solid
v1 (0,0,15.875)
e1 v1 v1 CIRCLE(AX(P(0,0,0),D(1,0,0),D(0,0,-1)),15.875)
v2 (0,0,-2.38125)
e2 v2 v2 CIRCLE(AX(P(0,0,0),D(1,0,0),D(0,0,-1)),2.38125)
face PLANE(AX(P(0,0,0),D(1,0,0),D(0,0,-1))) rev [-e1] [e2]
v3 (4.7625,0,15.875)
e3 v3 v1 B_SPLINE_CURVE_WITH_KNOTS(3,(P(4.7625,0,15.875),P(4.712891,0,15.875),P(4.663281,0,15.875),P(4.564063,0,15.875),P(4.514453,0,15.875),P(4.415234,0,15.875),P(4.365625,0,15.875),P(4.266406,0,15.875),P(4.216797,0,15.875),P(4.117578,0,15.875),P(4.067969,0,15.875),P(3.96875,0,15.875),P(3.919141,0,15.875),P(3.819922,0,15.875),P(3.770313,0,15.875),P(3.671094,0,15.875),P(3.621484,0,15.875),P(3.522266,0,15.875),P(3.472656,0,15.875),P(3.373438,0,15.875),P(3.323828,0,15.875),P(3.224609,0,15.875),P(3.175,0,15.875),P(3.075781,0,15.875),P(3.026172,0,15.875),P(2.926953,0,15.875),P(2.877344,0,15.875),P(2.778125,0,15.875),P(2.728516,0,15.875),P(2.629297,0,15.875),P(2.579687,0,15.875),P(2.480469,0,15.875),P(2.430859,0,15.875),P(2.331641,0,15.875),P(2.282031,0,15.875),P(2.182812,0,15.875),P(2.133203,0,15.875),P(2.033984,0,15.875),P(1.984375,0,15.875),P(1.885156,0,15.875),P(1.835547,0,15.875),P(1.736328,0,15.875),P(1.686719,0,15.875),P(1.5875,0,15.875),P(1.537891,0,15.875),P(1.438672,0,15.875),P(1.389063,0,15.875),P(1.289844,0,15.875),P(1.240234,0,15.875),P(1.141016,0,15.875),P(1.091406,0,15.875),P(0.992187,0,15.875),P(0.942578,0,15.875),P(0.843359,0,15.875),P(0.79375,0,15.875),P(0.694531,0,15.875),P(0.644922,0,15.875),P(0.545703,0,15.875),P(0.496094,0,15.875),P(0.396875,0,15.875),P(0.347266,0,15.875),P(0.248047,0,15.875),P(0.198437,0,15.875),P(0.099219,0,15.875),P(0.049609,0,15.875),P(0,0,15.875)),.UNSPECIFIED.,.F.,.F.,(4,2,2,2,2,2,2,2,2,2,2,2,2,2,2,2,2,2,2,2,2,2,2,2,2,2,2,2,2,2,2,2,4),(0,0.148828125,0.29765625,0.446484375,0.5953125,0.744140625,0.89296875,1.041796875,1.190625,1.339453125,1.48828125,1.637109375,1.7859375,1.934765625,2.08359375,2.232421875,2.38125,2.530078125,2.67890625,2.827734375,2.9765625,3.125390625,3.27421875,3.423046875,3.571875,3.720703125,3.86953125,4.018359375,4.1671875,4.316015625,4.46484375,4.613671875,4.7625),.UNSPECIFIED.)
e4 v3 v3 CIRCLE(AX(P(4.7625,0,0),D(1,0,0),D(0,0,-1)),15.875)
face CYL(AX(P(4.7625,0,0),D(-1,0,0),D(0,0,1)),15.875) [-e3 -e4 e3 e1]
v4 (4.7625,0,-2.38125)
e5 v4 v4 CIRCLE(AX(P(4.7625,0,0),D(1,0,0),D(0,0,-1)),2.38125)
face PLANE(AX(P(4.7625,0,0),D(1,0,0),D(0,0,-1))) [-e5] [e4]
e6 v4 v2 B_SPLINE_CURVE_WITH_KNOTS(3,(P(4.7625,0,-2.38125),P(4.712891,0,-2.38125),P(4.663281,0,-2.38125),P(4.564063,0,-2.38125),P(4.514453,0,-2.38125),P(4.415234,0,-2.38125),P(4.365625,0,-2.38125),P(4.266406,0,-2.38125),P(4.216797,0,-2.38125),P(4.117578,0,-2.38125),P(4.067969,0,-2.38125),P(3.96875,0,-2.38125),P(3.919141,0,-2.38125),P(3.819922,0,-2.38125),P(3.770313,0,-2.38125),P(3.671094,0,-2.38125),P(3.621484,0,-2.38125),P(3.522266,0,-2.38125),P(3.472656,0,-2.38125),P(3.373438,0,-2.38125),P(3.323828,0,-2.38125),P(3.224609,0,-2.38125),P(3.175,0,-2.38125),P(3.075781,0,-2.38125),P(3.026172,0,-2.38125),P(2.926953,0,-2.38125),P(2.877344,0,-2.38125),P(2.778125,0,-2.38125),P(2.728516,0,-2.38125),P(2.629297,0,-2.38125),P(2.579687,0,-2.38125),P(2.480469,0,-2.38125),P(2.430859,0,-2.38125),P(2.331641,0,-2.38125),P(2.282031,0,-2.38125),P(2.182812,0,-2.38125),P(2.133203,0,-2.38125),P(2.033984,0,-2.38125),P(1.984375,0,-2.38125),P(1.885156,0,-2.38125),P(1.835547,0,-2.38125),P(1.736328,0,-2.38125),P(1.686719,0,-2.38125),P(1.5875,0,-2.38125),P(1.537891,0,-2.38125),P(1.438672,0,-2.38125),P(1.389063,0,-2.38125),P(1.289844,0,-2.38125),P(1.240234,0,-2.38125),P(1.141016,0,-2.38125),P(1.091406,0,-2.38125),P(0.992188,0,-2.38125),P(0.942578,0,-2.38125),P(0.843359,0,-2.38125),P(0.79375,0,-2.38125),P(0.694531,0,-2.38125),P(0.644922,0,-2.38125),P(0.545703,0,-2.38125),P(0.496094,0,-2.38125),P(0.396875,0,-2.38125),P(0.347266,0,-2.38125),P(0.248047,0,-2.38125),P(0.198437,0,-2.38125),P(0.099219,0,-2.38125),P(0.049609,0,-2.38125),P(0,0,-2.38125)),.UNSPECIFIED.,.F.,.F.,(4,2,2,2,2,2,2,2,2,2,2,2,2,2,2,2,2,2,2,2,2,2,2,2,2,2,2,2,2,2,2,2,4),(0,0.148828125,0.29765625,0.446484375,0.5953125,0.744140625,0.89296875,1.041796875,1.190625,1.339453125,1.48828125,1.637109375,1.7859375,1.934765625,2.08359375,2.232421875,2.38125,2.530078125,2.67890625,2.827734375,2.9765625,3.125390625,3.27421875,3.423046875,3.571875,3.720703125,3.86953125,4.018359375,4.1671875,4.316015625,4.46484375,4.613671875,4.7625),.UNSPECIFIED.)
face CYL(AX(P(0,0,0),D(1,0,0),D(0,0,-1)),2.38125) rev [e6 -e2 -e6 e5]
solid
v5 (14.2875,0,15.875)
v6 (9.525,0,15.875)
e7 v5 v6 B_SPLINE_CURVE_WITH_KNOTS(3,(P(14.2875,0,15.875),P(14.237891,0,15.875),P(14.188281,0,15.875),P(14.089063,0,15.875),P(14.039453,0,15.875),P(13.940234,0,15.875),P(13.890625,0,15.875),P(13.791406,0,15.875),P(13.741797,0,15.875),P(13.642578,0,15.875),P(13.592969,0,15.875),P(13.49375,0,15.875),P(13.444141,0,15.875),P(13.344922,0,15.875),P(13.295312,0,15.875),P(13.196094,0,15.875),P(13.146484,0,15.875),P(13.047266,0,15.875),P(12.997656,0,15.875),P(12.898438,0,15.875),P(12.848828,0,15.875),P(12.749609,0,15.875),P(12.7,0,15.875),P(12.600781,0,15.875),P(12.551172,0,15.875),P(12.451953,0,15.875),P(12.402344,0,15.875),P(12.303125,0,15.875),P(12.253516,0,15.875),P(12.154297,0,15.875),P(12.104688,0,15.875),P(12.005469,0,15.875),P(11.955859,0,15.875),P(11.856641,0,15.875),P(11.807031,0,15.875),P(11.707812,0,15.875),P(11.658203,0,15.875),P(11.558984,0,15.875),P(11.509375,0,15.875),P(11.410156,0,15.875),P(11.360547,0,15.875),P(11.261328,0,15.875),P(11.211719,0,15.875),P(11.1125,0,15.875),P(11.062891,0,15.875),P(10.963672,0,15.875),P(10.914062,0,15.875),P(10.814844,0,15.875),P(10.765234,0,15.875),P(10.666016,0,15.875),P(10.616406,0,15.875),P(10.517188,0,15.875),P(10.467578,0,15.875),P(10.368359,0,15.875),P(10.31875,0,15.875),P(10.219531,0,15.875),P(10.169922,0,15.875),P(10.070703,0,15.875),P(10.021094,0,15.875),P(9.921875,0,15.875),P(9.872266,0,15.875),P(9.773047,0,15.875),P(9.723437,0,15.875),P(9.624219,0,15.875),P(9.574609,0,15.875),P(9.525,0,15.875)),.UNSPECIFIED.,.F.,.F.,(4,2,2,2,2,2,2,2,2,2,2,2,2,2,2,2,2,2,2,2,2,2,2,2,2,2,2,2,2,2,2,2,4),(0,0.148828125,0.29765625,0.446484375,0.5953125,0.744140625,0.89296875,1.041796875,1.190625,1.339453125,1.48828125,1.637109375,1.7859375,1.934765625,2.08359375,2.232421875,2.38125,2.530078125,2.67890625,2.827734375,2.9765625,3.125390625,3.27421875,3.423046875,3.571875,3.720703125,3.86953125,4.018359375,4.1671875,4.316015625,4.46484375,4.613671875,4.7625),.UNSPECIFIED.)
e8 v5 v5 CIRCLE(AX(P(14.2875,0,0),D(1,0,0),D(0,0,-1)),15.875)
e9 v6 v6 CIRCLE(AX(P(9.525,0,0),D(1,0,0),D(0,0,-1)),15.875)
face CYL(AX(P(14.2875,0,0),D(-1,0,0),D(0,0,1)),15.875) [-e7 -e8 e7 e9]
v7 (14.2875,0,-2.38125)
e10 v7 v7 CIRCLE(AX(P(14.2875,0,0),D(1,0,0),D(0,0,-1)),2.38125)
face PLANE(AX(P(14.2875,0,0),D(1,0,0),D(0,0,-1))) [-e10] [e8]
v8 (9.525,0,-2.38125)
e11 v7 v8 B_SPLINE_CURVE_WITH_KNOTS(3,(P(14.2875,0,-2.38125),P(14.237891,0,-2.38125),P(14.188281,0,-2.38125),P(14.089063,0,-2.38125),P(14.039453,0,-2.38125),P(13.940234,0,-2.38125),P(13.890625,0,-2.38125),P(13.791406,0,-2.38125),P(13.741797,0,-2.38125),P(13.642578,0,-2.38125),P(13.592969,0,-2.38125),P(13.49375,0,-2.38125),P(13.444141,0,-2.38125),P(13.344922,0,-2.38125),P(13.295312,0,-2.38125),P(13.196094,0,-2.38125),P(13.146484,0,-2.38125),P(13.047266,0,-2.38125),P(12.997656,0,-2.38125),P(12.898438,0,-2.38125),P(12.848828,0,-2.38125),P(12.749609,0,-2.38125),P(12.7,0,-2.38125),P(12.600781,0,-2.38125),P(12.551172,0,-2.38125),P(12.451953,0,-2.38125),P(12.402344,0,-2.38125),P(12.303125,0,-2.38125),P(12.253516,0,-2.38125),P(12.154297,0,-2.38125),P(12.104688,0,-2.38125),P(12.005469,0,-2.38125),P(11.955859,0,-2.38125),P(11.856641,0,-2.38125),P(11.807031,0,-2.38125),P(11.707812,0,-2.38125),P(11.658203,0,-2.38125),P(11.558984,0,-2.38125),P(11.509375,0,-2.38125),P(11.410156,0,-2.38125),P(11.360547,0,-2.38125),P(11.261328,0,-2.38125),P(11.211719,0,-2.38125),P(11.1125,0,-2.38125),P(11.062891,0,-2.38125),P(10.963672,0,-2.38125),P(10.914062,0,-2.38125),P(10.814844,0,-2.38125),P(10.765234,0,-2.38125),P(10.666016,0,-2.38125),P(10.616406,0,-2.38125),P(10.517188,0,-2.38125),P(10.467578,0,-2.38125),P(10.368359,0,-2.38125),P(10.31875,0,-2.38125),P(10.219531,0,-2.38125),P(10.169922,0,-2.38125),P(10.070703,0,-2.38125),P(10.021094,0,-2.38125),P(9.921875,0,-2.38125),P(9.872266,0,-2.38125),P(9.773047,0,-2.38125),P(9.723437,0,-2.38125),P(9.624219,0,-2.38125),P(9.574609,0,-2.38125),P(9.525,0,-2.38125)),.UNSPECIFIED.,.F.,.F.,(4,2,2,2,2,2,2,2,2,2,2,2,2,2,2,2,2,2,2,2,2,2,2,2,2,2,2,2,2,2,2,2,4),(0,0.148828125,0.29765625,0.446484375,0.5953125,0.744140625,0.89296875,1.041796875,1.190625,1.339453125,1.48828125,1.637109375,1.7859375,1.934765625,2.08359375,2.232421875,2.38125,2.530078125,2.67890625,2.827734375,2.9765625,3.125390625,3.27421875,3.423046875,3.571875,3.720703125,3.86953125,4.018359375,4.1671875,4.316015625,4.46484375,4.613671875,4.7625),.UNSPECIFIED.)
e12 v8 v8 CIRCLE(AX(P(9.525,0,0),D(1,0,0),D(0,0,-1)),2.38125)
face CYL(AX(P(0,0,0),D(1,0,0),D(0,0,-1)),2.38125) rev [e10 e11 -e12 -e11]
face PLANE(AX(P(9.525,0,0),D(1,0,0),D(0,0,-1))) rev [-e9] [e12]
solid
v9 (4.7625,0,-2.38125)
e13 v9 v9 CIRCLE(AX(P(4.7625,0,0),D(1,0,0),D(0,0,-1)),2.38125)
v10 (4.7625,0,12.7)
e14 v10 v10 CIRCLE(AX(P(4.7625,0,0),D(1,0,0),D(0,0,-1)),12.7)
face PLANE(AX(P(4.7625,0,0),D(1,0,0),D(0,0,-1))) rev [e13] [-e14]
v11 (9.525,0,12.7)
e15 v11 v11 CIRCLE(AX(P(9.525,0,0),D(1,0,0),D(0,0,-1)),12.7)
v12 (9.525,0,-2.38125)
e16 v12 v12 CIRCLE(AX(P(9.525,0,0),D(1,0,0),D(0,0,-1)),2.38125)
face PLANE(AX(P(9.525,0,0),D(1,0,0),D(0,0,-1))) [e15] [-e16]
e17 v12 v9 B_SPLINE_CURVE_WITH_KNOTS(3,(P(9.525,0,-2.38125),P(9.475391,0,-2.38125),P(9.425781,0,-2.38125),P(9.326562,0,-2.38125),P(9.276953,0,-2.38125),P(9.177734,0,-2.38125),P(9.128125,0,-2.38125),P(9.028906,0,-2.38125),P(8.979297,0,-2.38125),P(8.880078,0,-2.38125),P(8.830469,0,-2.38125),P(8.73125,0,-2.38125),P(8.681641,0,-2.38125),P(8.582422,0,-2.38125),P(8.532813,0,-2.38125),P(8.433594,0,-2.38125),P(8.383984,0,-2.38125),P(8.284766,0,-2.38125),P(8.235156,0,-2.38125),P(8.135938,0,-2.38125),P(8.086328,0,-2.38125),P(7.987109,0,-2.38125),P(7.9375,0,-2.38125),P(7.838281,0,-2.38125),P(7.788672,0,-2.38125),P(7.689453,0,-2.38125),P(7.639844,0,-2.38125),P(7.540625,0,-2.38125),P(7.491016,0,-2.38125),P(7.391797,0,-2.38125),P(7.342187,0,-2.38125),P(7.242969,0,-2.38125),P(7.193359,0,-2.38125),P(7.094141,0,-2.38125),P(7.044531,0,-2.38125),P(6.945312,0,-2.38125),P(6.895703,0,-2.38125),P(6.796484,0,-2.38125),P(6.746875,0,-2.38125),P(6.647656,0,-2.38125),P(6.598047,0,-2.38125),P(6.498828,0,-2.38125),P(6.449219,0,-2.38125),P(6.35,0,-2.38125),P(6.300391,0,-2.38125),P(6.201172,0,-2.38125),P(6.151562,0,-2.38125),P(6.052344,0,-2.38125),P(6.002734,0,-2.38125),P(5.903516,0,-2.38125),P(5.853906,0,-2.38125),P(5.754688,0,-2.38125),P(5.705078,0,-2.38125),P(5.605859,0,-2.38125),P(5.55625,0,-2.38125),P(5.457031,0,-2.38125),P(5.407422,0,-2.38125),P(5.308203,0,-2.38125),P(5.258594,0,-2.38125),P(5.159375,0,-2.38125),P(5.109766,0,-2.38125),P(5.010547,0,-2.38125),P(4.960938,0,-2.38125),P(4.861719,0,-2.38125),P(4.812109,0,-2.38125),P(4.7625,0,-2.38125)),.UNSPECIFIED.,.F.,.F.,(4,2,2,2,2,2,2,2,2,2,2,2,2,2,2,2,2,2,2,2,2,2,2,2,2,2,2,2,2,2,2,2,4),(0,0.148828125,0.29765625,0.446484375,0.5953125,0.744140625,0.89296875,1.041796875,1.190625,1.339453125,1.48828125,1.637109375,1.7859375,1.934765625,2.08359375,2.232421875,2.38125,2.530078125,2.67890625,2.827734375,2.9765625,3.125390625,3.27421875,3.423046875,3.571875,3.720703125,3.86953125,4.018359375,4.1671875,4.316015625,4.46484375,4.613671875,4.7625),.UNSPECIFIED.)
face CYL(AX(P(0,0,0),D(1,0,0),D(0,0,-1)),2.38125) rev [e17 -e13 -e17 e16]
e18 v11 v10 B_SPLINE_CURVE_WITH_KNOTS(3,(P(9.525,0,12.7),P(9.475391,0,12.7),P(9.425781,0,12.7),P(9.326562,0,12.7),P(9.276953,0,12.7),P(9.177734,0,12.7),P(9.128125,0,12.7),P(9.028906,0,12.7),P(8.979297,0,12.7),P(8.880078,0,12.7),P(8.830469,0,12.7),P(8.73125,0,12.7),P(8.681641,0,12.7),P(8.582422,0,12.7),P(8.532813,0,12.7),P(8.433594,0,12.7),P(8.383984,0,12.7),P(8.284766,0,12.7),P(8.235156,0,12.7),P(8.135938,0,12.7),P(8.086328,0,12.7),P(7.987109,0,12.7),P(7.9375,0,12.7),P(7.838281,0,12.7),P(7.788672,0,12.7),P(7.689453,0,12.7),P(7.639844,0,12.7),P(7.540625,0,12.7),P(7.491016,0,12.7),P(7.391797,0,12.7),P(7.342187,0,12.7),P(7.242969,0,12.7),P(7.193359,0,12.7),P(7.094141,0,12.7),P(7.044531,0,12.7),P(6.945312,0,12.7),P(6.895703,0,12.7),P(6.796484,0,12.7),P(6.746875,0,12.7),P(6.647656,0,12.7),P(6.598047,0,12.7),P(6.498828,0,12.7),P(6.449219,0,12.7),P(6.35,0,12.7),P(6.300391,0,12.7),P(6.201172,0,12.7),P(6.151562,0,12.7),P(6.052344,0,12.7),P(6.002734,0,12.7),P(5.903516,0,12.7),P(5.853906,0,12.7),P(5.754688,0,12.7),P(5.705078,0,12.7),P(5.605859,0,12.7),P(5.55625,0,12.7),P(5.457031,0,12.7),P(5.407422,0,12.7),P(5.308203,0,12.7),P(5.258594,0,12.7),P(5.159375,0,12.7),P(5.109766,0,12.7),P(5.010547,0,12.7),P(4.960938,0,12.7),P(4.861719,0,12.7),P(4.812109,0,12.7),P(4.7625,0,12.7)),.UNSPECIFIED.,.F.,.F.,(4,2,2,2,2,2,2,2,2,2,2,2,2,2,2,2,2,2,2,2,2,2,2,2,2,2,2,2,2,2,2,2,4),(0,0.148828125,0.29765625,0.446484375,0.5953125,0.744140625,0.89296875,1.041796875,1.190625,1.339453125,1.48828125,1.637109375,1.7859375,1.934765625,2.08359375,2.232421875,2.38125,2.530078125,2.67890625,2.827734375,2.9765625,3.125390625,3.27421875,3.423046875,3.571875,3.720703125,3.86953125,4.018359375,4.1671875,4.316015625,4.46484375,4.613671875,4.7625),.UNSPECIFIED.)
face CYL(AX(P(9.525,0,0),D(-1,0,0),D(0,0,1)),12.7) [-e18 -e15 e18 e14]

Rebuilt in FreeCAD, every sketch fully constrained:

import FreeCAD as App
import Part
import Sketcher

V = App.Vector
Q = App.Units.Quantity

doc = App.newDocument("Part")
body = doc.addObject("PartDesign::Body", "Body")

sketch1 = doc.addObject("Sketcher::SketchObject", "Sketch")
body.addObject(sketch1)
sketch1.AttachmentSupport = (doc.YZ_Plane, [""])
sketch1.MapMode = "FlatFace"
sketch1.addGeometry(Part.Circle(V(0, 0, 0), V(0, 0, 1), 16), False)
sketch1.addConstraint(Sketcher.Constraint("Coincident", 0, 3, -1, 1))
sketch1.addConstraint(Sketcher.Constraint("Diameter", 0, Q("1.25 in")))
pad1 = doc.addObject("PartDesign::Pad", "Pad")
body.addObject(pad1)
pad1.Profile = sketch1
pad1.Length = Q("0.1875 in")
body2 = doc.addObject("PartDesign::Body", "Body001")

sketch2 = doc.addObject("Sketcher::SketchObject", "Sketch001")
body2.addObject(sketch2)
sketch2.AttachmentSupport = (doc.getObject("YZ_Plane001"), [""])
sketch2.MapMode = "FlatFace"
sketch2.AttachmentOffset = App.Placement(V(0, 0, 0.1875 * 25.4), App.Rotation())
sketch2.addGeometry(Part.Circle(V(0, 0, 0), V(0, 0, 1), 13), False)
sketch2.addConstraint(Sketcher.Constraint("Coincident", 0, 3, -1, 1))
sketch2.addConstraint(Sketcher.Constraint("Diameter", 0, Q("1 in")))
pad2 = doc.addObject("PartDesign::Pad", "Pad001")
body2.addObject(pad2)
pad2.Profile = sketch2
pad2.Length = Q("0.1875 in")
body3 = doc.addObject("PartDesign::Body", "Body002")

sketch3 = doc.addObject("Sketcher::SketchObject", "Sketch002")
body3.addObject(sketch3)
sketch3.AttachmentSupport = (doc.getObject("YZ_Plane002"), [""])
sketch3.MapMode = "FlatFace"
sketch3.AttachmentOffset = App.Placement(V(0, 0, 0.375 * 25.4), App.Rotation())
sketch3.addGeometry(Part.Circle(V(0, 0, 0), V(0, 0, 1), 16), False)
sketch3.addConstraint(Sketcher.Constraint("Coincident", 0, 3, -1, 1))
sketch3.addConstraint(Sketcher.Constraint("Diameter", 0, Q("1.25 in")))
pad3 = doc.addObject("PartDesign::Pad", "Pad002")
body3.addObject(pad3)
pad3.Profile = sketch3
pad3.Length = Q("0.1875 in")
body4 = doc.addObject("PartDesign::Body", "Body003")

sketch4 = doc.addObject("Sketcher::SketchObject", "Sketch003")
body4.addObject(sketch4)
sketch4.AttachmentSupport = (doc.getObject("YZ_Plane003"), [""])
sketch4.MapMode = "FlatFace"
sketch4.AttachmentOffset = App.Placement(V(0, 0, 0.5625 * 25.4), App.Rotation())
sketch4.addGeometry(Part.Circle(V(0, 0, 0), V(0, 0, 1), 2.4), False)
sketch4.addConstraint(Sketcher.Constraint("Coincident", 0, 3, -1, 1))
sketch4.addConstraint(Sketcher.Constraint("Diameter", 0, Q("0.1875 in")))
pad4 = doc.addObject("PartDesign::Pad", "Pad003")
body4.addObject(pad4)
pad4.Profile = sketch4
pad4.Length = 27.611349
pad4.Reversed = True
doc.recompute()

body5 = doc.addObject("PartDesign::Body", "Body004")
body5.BaseFeature = body4
boolean = doc.addObject("PartDesign::Boolean", "Boolean")
body.addObject(boolean)
boolean.Type = "Cut"
boolean.addObjects([body5])
doc.recompute()

body6 = doc.addObject("PartDesign::Body", "Body005")
body6.BaseFeature = body4
boolean2 = doc.addObject("PartDesign::Boolean", "Boolean001")
body2.addObject(boolean2)
boolean2.Type = "Cut"
boolean2.addObjects([body6])
doc.recompute()

boolean3 = doc.addObject("PartDesign::Boolean", "Boolean002")
body3.addObject(boolean3)
boolean3.Type = "Cut"
boolean3.addObjects([body4])

doc.recompute()
